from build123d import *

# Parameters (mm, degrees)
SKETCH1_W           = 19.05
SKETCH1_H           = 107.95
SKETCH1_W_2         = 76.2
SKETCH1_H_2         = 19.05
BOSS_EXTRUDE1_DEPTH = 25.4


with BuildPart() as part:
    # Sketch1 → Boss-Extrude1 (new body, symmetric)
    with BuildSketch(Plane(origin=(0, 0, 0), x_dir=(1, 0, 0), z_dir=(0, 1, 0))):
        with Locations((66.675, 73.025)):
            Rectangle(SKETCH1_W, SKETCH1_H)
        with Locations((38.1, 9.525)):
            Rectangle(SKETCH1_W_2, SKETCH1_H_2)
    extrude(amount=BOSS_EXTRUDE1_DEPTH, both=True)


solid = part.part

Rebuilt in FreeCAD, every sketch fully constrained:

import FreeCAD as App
import Part
import Sketcher

V = App.Vector
Q = App.Units.Quantity

doc = App.newDocument("Part")
body = doc.addObject("PartDesign::Body", "Body")

# Sketch on XZ plane
sketch1 = body.newObject("Sketcher::SketchObject", "Sketch")
sketch1.AttachmentSupport = (doc.getObject("XZ_Plane"), [""])
sketch1.MapMode = "FlatFace"
sketch1.addGeometry(Part.LineSegment(V(57, -127, 0), V(57, -19, 0)), False)
sketch1.addGeometry(Part.LineSegment(V(57, -19, 0), V(0, -19, 0)), False)
sketch1.addGeometry(Part.LineSegment(V(0, -19, 0), V(0, 0, 0)), False)
sketch1.addGeometry(Part.LineSegment(V(0, 0, 0), V(76, 0, 0)), False)
sketch1.addGeometry(Part.LineSegment(V(76, 0, 0), V(76, -127, 0)), False)
sketch1.addGeometry(Part.LineSegment(V(76, -127, 0), V(57, -127, 0)), False)
sketch1.addConstraint(Sketcher.Constraint("Coincident", 0, 2, 1, 1))
sketch1.addConstraint(Sketcher.Constraint("Coincident", 1, 2, 2, 1))
sketch1.addConstraint(Sketcher.Constraint("Coincident", 2, 2, 3, 1))
sketch1.addConstraint(Sketcher.Constraint("Coincident", 3, 2, 4, 1))
sketch1.addConstraint(Sketcher.Constraint("Coincident", 4, 2, 5, 1))
sketch1.addConstraint(Sketcher.Constraint("Coincident", 5, 2, 0, 1))
sketch1.addConstraint(Sketcher.Constraint("Vertical", 0))
sketch1.addConstraint(Sketcher.Constraint("Horizontal", 1))
sketch1.addConstraint(Sketcher.Constraint("Vertical", 2))
sketch1.addConstraint(Sketcher.Constraint("Horizontal", 3))
sketch1.addConstraint(Sketcher.Constraint("Vertical", 4))
sketch1.addConstraint(Sketcher.Constraint("Horizontal", 5))
sketch1.addConstraint(Sketcher.Constraint("Coincident", 2, 2, -1, 1))
sketch1.addConstraint(Sketcher.Constraint("Equal", 5, 2))
sketch1.addConstraint(Sketcher.Constraint("DistanceX", 3, 1, 3, 2, Q("3 in")))
sketch1.addConstraint(Sketcher.Constraint("DistanceY", 4, 2, 4, 1, Q("5 in")))
sketch1.addConstraint(Sketcher.Constraint("DistanceX", 1, 2, 1, 1, Q("2.25 in")))
pad1 = body.newObject("PartDesign::Pad", "Pad")
pad1.Profile = sketch1
pad1.Length = Q("2 in")
pad1.Midplane = True

doc.recompute()
